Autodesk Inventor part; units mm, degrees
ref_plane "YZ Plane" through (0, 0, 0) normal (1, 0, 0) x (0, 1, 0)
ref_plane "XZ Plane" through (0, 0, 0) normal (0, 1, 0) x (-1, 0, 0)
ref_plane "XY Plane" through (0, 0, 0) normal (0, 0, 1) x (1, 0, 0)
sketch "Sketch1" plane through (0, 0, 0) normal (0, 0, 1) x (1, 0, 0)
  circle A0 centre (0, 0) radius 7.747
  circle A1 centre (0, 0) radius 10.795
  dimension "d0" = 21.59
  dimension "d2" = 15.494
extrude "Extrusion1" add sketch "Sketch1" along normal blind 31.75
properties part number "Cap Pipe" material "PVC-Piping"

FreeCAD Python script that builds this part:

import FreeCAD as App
import Part
import Sketcher

V = App.Vector
Q = App.Units.Quantity

doc = App.newDocument("Part")
body = doc.addObject("PartDesign::Body", "Body")

# Sketch on XY plane
sketch1 = body.newObject("Sketcher::SketchObject", "Sketch")
sketch1.AttachmentSupport = (doc.getObject("XY_Plane"), [""])
sketch1.MapMode = "FlatFace"
sketch1.addGeometry(Part.Circle(V(0, 0, 0), V(0, 0, 1), 11), False)
sketch1.addGeometry(Part.Circle(V(0, 0, 0), V(0, 0, 1), 8), False)
sketch1.addConstraint(Sketcher.Constraint("Coincident", 0, 3, -1, 1))
sketch1.addConstraint(Sketcher.Constraint("Coincident", 1, 3, -1, 1))
sketch1.addConstraint(Sketcher.Constraint("Diameter", 0, Q("0.85 in")))
sketch1.addConstraint(Sketcher.Constraint("Diameter", 1, Q("0.61 in")))
pad1 = body.newObject("PartDesign::Pad", "Pad")
pad1.Profile = sketch1
pad1.Length = Q("1.25 in")

doc.recompute()
